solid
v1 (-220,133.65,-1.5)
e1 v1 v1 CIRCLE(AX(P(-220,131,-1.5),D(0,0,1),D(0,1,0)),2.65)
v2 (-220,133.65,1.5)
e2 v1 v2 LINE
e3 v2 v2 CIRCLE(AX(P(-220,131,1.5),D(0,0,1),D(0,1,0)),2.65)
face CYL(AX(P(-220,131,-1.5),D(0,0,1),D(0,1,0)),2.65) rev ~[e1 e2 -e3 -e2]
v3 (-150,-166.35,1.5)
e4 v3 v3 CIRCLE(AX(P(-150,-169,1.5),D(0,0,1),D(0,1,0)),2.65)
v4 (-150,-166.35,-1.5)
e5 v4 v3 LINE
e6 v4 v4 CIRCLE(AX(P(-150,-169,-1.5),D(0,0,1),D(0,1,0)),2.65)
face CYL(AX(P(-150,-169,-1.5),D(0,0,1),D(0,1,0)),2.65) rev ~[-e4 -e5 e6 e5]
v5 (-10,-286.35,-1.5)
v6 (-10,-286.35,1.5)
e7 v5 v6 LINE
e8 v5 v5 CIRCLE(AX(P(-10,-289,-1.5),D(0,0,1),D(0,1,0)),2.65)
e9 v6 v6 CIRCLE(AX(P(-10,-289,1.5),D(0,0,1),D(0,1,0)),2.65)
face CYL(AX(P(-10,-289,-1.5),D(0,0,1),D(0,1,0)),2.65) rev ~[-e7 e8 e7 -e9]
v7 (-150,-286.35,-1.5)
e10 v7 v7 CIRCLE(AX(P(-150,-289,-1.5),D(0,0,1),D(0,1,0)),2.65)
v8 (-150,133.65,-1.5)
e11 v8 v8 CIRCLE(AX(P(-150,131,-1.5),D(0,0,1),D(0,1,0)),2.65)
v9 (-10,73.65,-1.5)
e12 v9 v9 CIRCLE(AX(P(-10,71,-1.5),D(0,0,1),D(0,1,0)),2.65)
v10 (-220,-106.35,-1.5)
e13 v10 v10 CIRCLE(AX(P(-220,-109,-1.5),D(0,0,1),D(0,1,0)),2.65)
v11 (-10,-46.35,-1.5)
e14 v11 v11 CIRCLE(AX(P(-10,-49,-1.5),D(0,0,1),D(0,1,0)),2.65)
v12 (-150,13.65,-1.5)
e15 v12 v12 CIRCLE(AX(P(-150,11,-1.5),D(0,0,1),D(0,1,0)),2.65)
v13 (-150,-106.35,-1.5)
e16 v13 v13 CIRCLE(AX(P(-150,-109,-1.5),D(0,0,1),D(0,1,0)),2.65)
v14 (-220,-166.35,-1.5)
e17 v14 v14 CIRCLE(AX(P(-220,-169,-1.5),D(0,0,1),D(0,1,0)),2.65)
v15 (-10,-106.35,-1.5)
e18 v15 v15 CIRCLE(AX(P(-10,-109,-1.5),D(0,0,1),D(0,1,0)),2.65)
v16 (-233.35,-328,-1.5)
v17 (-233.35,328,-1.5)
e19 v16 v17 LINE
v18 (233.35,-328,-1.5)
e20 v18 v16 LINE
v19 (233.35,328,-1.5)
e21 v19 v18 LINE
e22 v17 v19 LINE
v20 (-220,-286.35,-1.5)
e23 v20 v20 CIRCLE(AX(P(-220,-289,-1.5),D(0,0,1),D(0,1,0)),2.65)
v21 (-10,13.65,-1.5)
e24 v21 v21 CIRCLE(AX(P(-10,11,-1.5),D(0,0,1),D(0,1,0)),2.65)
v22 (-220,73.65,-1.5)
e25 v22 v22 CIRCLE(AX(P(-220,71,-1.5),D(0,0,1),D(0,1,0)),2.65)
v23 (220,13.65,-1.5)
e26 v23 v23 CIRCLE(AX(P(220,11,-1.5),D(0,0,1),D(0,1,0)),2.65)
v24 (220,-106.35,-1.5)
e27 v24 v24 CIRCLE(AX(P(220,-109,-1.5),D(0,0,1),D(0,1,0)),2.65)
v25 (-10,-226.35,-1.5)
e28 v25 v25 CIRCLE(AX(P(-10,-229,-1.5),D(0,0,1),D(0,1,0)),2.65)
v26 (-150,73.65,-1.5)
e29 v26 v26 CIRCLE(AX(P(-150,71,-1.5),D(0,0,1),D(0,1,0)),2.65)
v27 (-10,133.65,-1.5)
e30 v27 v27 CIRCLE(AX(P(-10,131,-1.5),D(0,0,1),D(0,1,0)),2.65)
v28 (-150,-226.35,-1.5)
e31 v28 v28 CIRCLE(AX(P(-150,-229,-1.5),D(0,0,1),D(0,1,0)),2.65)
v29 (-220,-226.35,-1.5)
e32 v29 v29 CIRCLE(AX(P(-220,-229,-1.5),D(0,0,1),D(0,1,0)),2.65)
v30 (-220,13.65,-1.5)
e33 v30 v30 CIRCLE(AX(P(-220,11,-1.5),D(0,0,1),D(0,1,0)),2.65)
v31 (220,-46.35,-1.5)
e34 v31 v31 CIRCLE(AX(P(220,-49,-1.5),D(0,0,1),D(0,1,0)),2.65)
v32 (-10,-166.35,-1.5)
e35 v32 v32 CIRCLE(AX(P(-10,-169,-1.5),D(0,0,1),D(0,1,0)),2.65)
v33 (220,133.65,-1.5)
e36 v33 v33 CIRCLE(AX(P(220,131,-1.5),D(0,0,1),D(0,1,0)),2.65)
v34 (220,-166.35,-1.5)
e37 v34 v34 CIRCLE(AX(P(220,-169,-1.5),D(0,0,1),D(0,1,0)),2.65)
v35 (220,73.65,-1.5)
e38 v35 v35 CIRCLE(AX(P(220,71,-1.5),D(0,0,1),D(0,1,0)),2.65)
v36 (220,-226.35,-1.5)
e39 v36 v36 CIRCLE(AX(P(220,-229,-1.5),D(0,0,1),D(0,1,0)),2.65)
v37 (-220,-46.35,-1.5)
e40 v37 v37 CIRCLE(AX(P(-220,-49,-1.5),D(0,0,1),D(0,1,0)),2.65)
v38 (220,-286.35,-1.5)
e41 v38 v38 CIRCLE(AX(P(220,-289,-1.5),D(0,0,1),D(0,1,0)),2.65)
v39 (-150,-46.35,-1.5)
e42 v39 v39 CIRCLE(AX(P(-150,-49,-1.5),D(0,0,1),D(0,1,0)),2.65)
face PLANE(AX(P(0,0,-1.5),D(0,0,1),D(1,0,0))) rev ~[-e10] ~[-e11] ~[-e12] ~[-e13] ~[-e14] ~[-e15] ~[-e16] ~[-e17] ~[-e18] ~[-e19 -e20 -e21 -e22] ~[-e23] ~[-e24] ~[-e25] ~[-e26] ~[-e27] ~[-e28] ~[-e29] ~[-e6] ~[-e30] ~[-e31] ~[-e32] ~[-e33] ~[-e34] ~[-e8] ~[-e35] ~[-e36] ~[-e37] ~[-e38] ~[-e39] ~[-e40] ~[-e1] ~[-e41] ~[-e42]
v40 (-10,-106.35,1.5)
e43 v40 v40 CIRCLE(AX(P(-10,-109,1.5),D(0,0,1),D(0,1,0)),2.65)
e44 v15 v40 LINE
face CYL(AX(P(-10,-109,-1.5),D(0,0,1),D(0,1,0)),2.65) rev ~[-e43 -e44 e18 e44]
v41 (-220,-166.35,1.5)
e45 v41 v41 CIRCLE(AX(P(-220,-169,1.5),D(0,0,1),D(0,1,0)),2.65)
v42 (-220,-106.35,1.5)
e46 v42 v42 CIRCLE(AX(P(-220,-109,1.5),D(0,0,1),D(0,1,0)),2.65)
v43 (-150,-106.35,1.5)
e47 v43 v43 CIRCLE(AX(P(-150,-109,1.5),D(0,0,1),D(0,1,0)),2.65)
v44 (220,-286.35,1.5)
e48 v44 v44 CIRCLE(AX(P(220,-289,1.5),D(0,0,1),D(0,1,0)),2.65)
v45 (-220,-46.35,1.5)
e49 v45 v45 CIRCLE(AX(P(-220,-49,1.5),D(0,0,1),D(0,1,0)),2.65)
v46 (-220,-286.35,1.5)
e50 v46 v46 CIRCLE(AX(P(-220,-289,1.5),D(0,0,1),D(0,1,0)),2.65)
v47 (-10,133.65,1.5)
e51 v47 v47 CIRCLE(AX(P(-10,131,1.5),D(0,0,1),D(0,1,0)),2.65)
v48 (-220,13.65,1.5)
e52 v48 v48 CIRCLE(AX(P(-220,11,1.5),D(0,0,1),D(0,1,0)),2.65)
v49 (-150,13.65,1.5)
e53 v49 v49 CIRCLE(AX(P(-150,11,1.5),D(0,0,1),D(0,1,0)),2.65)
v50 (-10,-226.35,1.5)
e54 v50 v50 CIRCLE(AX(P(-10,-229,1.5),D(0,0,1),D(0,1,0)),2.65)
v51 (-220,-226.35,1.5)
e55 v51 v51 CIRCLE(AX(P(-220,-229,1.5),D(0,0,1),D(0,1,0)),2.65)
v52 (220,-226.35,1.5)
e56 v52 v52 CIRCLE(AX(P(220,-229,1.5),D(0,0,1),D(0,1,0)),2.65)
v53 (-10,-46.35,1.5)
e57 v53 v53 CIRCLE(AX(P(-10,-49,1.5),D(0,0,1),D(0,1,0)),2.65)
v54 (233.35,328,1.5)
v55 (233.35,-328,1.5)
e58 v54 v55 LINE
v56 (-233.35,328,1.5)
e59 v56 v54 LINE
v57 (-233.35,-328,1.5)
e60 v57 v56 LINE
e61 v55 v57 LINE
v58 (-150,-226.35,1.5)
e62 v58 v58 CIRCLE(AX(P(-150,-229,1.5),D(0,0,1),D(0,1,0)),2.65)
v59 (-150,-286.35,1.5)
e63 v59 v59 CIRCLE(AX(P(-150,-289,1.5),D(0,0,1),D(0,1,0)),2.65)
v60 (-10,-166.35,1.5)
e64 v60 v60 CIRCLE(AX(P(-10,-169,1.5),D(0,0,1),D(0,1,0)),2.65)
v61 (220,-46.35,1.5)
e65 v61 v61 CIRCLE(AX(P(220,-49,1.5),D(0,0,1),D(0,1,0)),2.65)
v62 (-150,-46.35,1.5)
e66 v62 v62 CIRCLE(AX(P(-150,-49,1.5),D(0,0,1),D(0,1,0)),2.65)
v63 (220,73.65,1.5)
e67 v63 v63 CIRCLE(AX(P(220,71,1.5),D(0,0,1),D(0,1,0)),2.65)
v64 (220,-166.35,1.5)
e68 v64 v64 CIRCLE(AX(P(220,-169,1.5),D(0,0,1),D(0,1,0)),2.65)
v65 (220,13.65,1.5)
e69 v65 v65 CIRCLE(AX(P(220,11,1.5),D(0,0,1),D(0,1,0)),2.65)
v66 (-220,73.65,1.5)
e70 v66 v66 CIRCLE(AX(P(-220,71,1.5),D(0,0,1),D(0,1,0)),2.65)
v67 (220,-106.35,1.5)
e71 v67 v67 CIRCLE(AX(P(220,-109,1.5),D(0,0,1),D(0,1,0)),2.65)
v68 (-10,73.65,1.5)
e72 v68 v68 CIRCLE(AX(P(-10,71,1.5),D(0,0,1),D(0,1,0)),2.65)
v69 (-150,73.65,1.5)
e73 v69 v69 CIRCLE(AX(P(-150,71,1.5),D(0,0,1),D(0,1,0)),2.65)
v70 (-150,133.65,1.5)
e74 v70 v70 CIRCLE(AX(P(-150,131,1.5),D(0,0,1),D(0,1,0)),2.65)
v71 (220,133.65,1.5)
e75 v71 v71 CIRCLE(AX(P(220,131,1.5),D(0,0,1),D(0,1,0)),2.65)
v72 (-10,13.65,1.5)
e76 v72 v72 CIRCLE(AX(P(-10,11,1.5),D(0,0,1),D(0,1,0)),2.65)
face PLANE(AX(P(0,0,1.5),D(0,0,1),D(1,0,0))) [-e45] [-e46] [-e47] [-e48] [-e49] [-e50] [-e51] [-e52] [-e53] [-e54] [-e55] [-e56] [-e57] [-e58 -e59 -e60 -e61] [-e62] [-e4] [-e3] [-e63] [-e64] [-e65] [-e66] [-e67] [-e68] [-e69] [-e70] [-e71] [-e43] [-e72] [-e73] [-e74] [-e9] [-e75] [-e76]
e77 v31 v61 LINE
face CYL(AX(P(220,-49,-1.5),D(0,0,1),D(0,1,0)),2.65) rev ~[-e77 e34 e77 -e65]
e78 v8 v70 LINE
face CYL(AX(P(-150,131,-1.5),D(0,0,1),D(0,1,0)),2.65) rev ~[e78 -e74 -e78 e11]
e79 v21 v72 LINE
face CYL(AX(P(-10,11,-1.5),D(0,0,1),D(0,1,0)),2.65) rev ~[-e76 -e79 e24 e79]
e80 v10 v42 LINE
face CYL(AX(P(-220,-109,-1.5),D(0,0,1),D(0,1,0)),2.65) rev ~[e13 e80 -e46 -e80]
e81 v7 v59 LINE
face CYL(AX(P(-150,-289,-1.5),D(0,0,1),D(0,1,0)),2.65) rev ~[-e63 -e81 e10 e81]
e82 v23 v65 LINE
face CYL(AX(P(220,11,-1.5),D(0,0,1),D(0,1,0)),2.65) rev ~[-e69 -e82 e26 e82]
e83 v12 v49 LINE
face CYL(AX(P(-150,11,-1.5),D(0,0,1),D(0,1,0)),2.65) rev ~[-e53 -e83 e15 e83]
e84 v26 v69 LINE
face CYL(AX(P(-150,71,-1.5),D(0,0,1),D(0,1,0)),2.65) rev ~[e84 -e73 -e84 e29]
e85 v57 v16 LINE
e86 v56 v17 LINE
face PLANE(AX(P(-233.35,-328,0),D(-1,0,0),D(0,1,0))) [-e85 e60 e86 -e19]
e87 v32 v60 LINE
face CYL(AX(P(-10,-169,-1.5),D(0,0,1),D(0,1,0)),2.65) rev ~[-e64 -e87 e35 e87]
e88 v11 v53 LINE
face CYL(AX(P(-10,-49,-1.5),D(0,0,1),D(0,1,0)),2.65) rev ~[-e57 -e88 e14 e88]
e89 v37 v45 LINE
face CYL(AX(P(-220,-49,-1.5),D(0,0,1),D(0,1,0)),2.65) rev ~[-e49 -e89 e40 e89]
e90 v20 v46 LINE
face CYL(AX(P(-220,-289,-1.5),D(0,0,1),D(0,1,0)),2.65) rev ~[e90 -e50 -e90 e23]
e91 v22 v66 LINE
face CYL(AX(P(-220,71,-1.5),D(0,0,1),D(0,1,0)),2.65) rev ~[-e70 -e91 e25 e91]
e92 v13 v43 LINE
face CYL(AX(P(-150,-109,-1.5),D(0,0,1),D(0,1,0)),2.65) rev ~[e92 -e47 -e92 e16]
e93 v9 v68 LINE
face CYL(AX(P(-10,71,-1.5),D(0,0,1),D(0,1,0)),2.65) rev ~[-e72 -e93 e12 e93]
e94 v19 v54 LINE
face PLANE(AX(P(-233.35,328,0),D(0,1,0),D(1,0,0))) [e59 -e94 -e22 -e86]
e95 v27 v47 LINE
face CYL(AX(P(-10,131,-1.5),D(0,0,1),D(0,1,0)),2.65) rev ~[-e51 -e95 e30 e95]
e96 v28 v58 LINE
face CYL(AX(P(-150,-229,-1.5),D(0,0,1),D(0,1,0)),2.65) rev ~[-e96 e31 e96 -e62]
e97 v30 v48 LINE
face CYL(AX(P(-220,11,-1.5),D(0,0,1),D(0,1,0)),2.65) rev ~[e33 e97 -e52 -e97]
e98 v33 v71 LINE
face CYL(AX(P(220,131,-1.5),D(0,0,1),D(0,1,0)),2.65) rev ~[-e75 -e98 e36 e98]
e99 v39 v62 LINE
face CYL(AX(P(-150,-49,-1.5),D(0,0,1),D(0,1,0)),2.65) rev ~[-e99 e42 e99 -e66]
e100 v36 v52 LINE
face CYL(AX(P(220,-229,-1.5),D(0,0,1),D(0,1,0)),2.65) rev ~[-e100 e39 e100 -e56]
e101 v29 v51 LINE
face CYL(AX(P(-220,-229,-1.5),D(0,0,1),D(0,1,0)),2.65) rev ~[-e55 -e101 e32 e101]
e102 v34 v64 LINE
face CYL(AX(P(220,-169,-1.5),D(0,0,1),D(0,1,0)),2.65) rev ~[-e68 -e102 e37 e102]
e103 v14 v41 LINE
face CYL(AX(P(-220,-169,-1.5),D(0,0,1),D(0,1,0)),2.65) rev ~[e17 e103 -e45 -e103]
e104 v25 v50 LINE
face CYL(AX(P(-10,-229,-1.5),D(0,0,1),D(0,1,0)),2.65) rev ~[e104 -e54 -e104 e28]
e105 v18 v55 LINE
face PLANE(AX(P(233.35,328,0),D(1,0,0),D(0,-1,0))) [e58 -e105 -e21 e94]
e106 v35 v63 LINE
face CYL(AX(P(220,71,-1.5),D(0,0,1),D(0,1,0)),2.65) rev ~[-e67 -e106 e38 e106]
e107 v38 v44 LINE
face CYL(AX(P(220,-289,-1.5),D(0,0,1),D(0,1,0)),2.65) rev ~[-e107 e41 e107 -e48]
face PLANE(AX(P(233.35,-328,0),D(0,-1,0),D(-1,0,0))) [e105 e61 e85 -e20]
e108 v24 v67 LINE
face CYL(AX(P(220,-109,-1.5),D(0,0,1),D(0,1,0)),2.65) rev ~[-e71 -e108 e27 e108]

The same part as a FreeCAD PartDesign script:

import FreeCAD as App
import Part
import Sketcher
Q = App.Units.Quantity

doc = App.newDocument("Part")
body = doc.addObject("PartDesign::Body", "Body")

sketch1 = body.newObject("Sketcher::SketchObject", "Sketch")
sketch1.AttachmentSupport = (doc.getObject("XY_Plane"), [""])
sketch1.MapMode = "FlatFace"
sketch1.addGeometry([
    Part.LineSegment(App.Vector(-233.35, -328, 0), App.Vector(233.35, -328, 0)),
    Part.LineSegment(App.Vector(233.35, -328, 0), App.Vector(233.35, 328, 0)),
    Part.LineSegment(App.Vector(233.35, 328, 0), App.Vector(-233.35, 328, 0)),
    Part.LineSegment(App.Vector(-233.35, 328, 0), App.Vector(-233.35, -328, 0)),
], False)
sketch1.addConstraint([
    Sketcher.Constraint("Coincident", 0, 2, 1, 1),
    Sketcher.Constraint("Coincident", 1, 2, 2, 1),
    Sketcher.Constraint("Coincident", 2, 2, 3, 1),
    Sketcher.Constraint("Coincident", 3, 2, 0, 1),
    Sketcher.Constraint("Horizontal", 0),
    Sketcher.Constraint("Vertical", 1),
    Sketcher.Constraint("Horizontal", 2),
    Sketcher.Constraint("Vertical", 3),
    Sketcher.Constraint("Symmetric", 0, 2, 2, 2, -1, 1),
    Sketcher.Constraint("DistanceY", 1, 1, 1, 2, Q("656 mm")),
    Sketcher.Constraint("DistanceX", 0, 1, 0, 2, Q("466.7 mm")),
])
pad1 = body.newObject("PartDesign::Pad", "Pad")
pad1.Profile = sketch1
pad1.Length = 3
pad1.Midplane = True

sketch2 = body.newObject("Sketcher::SketchObject", "Sketch001")
sketch2.AttachmentSupport = (doc.getObject("XY_Plane"), [""])
sketch2.MapMode = "FlatFace"
sketch2.AttachmentOffset = App.Placement(App.Vector(0, 0, -1.5), App.Rotation())
sketch2.addGeometry([
    Part.Circle(App.Vector(220, -289, 0), App.Vector(0, 0, 1), 2.65),
    Part.Circle(App.Vector(-220, -289, 0), App.Vector(0, 0, 1), 2.65),
    Part.Circle(App.Vector(-10, -289, 0), App.Vector(0, 0, 1), 2.65),
    Part.Circle(App.Vector(-150, -289, 0), App.Vector(0, 0, 1), 2.65),
    Part.Circle(App.Vector(220, -229, 0), App.Vector(0, 0, 1), 2.65),
    Part.Circle(App.Vector(-10, -229, 0), App.Vector(0, 0, 1), 2.65),
    Part.Circle(App.Vector(-150, -229, 0), App.Vector(0, 0, 1), 2.65),
    Part.Circle(App.Vector(-220, -229, 0), App.Vector(0, 0, 1), 2.65),
    Part.Circle(App.Vector(220, -169, 0), App.Vector(0, 0, 1), 2.65),
    Part.Circle(App.Vector(-10, -169, 0), App.Vector(0, 0, 1), 2.65),
    Part.Circle(App.Vector(-150, -169, 0), App.Vector(0, 0, 1), 2.65),
    Part.Circle(App.Vector(-220, -169, 0), App.Vector(0, 0, 1), 2.65),
    Part.Circle(App.Vector(220, -109, 0), App.Vector(0, 0, 1), 2.65),
    Part.Circle(App.Vector(-10, -109, 0), App.Vector(0, 0, 1), 2.65),
    Part.Circle(App.Vector(-150, -109, 0), App.Vector(0, 0, 1), 2.65),
    Part.Circle(App.Vector(-220, -109, 0), App.Vector(0, 0, 1), 2.65),
    Part.Circle(App.Vector(220, -49, 0), App.Vector(0, 0, 1), 2.65),
    Part.Circle(App.Vector(-10, -49, 0), App.Vector(0, 0, 1), 2.65),
    Part.Circle(App.Vector(-150, -49, 0), App.Vector(0, 0, 1), 2.65),
    Part.Circle(App.Vector(-220, -49, 0), App.Vector(0, 0, 1), 2.65),
    Part.Circle(App.Vector(220, 11, 0), App.Vector(0, 0, 1), 2.65),
    Part.Circle(App.Vector(-10, 11, 0), App.Vector(0, 0, 1), 2.65),
    Part.Circle(App.Vector(-150, 11, 0), App.Vector(0, 0, 1), 2.65),
    Part.Circle(App.Vector(-220, 11, 0), App.Vector(0, 0, 1), 2.65),
    Part.Circle(App.Vector(220, 71, 0), App.Vector(0, 0, 1), 2.65),
    Part.Circle(App.Vector(-10, 71, 0), App.Vector(0, 0, 1), 2.65),
    Part.Circle(App.Vector(-150, 71, 0), App.Vector(0, 0, 1), 2.65),
    Part.Circle(App.Vector(-220, 71, 0), App.Vector(0, 0, 1), 2.65),
    Part.Circle(App.Vector(220, 131, 0), App.Vector(0, 0, 1), 2.65),
    Part.Circle(App.Vector(-10, 131, 0), App.Vector(0, 0, 1), 2.65),
    Part.Circle(App.Vector(-150, 131, 0), App.Vector(0, 0, 1), 2.65),
    Part.Circle(App.Vector(-220, 131, 0), App.Vector(0, 0, 1), 2.65),
], False)
sketch2.addConstraint([
    Sketcher.Constraint("Equal", 0, 1),
    Sketcher.Constraint("Equal", 1, 2),
    Sketcher.Constraint("Equal", 2, 3),
    Sketcher.Constraint("Equal", 3, 4),
    Sketcher.Constraint("Equal", 4, 5),
    Sketcher.Constraint("Equal", 5, 6),
    Sketcher.Constraint("Equal", 6, 7),
    Sketcher.Constraint("Equal", 7, 8),
    Sketcher.Constraint("Equal", 8, 9),
    Sketcher.Constraint("Equal", 9, 10),
    Sketcher.Constraint("Equal", 10, 11),
    Sketcher.Constraint("Equal", 11, 12),
    Sketcher.Constraint("Equal", 12, 13),
    Sketcher.Constraint("Equal", 13, 14),
    Sketcher.Constraint("Equal", 14, 15),
    Sketcher.Constraint("Equal", 15, 16),
    Sketcher.Constraint("Equal", 16, 17),
    Sketcher.Constraint("Equal", 17, 18),
    Sketcher.Constraint("Equal", 18, 19),
    Sketcher.Constraint("Equal", 19, 20),
    Sketcher.Constraint("Equal", 20, 21),
    Sketcher.Constraint("Equal", 21, 22),
    Sketcher.Constraint("Equal", 22, 23),
    Sketcher.Constraint("Equal", 23, 24),
    Sketcher.Constraint("Equal", 24, 25),
    Sketcher.Constraint("Equal", 25, 26),
    Sketcher.Constraint("Equal", 26, 27),
    Sketcher.Constraint("Equal", 27, 28),
    Sketcher.Constraint("Equal", 28, 29),
    Sketcher.Constraint("Equal", 29, 30),
    Sketcher.Constraint("Equal", 30, 31),
    Sketcher.Constraint("Symmetric", 0, 3, 1, 3, -2),
    Sketcher.Constraint("Symmetric", 4, 3, 7, 3, -2),
    Sketcher.Constraint("Symmetric", 8, 3, 11, 3, -2),
    Sketcher.Constraint("Symmetric", 12, 3, 15, 3, -2),
    Sketcher.Constraint("Symmetric", 16, 3, 19, 3, -2),
    Sketcher.Constraint("Symmetric", 20, 3, 23, 3, -2),
    Sketcher.Constraint("Symmetric", 24, 3, 27, 3, -2),
    Sketcher.Constraint("Symmetric", 28, 3, 31, 3, -2),
    Sketcher.Constraint("Horizontal", 1, 3, 2, 3),
    Sketcher.Constraint("Horizontal", 2, 3, 3, 3),
    Sketcher.Constraint("Horizontal", 4, 3, 5, 3),
    Sketcher.Constraint("Horizontal", 5, 3, 6, 3),
    Sketcher.Constraint("Horizontal", 8, 3, 9, 3),
    Sketcher.Constraint("Horizontal", 9, 3, 10, 3),
    Sketcher.Constraint("Horizontal", 12, 3, 13, 3),
    Sketcher.Constraint("Horizontal", 13, 3, 14, 3),
    Sketcher.Constraint("Horizontal", 16, 3, 17, 3),
    Sketcher.Constraint("Horizontal", 17, 3, 18, 3),
    Sketcher.Constraint("Horizontal", 20, 3, 21, 3),
    Sketcher.Constraint("Horizontal", 21, 3, 22, 3),
    Sketcher.Constraint("Horizontal", 24, 3, 25, 3),
    Sketcher.Constraint("Horizontal", 25, 3, 26, 3),
    Sketcher.Constraint("Horizontal", 28, 3, 29, 3),
    Sketcher.Constraint("Horizontal", 29, 3, 30, 3),
    Sketcher.Constraint("Vertical", 0, 3, 4, 3),
    Sketcher.Constraint("Vertical", 2, 3, 5, 3),
    Sketcher.Constraint("Vertical", 3, 3, 6, 3),
    Sketcher.Constraint("Vertical", 4, 3, 8, 3),
    Sketcher.Constraint("Vertical", 5, 3, 9, 3),
    Sketcher.Constraint("Vertical", 6, 3, 10, 3),
    Sketcher.Constraint("Vertical", 8, 3, 12, 3),
    Sketcher.Constraint("Vertical", 9, 3, 13, 3),
    Sketcher.Constraint("Vertical", 10, 3, 14, 3),
    Sketcher.Constraint("Vertical", 12, 3, 16, 3),
    Sketcher.Constraint("Vertical", 13, 3, 17, 3),
    Sketcher.Constraint("Vertical", 14, 3, 18, 3),
    Sketcher.Constraint("Vertical", 16, 3, 20, 3),
    Sketcher.Constraint("Vertical", 17, 3, 21, 3),
    Sketcher.Constraint("Vertical", 18, 3, 22, 3),
    Sketcher.Constraint("Vertical", 20, 3, 24, 3),
    Sketcher.Constraint("Vertical", 21, 3, 25, 3),
    Sketcher.Constraint("Vertical", 22, 3, 26, 3),
    Sketcher.Constraint("Vertical", 24, 3, 28, 3),
    Sketcher.Constraint("Vertical", 25, 3, 29, 3),
    Sketcher.Constraint("Vertical", 26, 3, 30, 3),
    Sketcher.Constraint("Diameter", 0, Q("5.3 mm")),
    Sketcher.Constraint("DistanceX", -1, 1, 0, 3, Q("220 mm")),
    Sketcher.Constraint("DistanceY", 0, 3, -1, 1, Q("289 mm")),
    Sketcher.Constraint("DistanceX", 2, 3, -1, 1, Q("10 mm")),
    Sketcher.Constraint("DistanceX", 3, 3, -1, 1, Q("150 mm")),
    Sketcher.Constraint("DistanceY", 4, 3, -1, 1, Q("229 mm")),
    Sketcher.Constraint("DistanceY", 8, 3, -1, 1, Q("169 mm")),
    Sketcher.Constraint("DistanceY", 12, 3, -1, 1, Q("109 mm")),
    Sketcher.Constraint("DistanceY", 16, 3, -1, 1, Q("49 mm")),
    Sketcher.Constraint("DistanceY", -1, 1, 20, 3, Q("11 mm")),
    Sketcher.Constraint("DistanceY", -1, 1, 24, 3, Q("71 mm")),
    Sketcher.Constraint("DistanceY", -1, 1, 28, 3, Q("131 mm")),
])
doc.recompute()
hole = body.newObject("PartDesign::Hole", "Hole")
hole.Profile = sketch2
hole.ThreadType = "None"
hole.Diameter = 5.3
hole.DepthType = "ThroughAll"
hole.Reversed = True

doc.recompute()
